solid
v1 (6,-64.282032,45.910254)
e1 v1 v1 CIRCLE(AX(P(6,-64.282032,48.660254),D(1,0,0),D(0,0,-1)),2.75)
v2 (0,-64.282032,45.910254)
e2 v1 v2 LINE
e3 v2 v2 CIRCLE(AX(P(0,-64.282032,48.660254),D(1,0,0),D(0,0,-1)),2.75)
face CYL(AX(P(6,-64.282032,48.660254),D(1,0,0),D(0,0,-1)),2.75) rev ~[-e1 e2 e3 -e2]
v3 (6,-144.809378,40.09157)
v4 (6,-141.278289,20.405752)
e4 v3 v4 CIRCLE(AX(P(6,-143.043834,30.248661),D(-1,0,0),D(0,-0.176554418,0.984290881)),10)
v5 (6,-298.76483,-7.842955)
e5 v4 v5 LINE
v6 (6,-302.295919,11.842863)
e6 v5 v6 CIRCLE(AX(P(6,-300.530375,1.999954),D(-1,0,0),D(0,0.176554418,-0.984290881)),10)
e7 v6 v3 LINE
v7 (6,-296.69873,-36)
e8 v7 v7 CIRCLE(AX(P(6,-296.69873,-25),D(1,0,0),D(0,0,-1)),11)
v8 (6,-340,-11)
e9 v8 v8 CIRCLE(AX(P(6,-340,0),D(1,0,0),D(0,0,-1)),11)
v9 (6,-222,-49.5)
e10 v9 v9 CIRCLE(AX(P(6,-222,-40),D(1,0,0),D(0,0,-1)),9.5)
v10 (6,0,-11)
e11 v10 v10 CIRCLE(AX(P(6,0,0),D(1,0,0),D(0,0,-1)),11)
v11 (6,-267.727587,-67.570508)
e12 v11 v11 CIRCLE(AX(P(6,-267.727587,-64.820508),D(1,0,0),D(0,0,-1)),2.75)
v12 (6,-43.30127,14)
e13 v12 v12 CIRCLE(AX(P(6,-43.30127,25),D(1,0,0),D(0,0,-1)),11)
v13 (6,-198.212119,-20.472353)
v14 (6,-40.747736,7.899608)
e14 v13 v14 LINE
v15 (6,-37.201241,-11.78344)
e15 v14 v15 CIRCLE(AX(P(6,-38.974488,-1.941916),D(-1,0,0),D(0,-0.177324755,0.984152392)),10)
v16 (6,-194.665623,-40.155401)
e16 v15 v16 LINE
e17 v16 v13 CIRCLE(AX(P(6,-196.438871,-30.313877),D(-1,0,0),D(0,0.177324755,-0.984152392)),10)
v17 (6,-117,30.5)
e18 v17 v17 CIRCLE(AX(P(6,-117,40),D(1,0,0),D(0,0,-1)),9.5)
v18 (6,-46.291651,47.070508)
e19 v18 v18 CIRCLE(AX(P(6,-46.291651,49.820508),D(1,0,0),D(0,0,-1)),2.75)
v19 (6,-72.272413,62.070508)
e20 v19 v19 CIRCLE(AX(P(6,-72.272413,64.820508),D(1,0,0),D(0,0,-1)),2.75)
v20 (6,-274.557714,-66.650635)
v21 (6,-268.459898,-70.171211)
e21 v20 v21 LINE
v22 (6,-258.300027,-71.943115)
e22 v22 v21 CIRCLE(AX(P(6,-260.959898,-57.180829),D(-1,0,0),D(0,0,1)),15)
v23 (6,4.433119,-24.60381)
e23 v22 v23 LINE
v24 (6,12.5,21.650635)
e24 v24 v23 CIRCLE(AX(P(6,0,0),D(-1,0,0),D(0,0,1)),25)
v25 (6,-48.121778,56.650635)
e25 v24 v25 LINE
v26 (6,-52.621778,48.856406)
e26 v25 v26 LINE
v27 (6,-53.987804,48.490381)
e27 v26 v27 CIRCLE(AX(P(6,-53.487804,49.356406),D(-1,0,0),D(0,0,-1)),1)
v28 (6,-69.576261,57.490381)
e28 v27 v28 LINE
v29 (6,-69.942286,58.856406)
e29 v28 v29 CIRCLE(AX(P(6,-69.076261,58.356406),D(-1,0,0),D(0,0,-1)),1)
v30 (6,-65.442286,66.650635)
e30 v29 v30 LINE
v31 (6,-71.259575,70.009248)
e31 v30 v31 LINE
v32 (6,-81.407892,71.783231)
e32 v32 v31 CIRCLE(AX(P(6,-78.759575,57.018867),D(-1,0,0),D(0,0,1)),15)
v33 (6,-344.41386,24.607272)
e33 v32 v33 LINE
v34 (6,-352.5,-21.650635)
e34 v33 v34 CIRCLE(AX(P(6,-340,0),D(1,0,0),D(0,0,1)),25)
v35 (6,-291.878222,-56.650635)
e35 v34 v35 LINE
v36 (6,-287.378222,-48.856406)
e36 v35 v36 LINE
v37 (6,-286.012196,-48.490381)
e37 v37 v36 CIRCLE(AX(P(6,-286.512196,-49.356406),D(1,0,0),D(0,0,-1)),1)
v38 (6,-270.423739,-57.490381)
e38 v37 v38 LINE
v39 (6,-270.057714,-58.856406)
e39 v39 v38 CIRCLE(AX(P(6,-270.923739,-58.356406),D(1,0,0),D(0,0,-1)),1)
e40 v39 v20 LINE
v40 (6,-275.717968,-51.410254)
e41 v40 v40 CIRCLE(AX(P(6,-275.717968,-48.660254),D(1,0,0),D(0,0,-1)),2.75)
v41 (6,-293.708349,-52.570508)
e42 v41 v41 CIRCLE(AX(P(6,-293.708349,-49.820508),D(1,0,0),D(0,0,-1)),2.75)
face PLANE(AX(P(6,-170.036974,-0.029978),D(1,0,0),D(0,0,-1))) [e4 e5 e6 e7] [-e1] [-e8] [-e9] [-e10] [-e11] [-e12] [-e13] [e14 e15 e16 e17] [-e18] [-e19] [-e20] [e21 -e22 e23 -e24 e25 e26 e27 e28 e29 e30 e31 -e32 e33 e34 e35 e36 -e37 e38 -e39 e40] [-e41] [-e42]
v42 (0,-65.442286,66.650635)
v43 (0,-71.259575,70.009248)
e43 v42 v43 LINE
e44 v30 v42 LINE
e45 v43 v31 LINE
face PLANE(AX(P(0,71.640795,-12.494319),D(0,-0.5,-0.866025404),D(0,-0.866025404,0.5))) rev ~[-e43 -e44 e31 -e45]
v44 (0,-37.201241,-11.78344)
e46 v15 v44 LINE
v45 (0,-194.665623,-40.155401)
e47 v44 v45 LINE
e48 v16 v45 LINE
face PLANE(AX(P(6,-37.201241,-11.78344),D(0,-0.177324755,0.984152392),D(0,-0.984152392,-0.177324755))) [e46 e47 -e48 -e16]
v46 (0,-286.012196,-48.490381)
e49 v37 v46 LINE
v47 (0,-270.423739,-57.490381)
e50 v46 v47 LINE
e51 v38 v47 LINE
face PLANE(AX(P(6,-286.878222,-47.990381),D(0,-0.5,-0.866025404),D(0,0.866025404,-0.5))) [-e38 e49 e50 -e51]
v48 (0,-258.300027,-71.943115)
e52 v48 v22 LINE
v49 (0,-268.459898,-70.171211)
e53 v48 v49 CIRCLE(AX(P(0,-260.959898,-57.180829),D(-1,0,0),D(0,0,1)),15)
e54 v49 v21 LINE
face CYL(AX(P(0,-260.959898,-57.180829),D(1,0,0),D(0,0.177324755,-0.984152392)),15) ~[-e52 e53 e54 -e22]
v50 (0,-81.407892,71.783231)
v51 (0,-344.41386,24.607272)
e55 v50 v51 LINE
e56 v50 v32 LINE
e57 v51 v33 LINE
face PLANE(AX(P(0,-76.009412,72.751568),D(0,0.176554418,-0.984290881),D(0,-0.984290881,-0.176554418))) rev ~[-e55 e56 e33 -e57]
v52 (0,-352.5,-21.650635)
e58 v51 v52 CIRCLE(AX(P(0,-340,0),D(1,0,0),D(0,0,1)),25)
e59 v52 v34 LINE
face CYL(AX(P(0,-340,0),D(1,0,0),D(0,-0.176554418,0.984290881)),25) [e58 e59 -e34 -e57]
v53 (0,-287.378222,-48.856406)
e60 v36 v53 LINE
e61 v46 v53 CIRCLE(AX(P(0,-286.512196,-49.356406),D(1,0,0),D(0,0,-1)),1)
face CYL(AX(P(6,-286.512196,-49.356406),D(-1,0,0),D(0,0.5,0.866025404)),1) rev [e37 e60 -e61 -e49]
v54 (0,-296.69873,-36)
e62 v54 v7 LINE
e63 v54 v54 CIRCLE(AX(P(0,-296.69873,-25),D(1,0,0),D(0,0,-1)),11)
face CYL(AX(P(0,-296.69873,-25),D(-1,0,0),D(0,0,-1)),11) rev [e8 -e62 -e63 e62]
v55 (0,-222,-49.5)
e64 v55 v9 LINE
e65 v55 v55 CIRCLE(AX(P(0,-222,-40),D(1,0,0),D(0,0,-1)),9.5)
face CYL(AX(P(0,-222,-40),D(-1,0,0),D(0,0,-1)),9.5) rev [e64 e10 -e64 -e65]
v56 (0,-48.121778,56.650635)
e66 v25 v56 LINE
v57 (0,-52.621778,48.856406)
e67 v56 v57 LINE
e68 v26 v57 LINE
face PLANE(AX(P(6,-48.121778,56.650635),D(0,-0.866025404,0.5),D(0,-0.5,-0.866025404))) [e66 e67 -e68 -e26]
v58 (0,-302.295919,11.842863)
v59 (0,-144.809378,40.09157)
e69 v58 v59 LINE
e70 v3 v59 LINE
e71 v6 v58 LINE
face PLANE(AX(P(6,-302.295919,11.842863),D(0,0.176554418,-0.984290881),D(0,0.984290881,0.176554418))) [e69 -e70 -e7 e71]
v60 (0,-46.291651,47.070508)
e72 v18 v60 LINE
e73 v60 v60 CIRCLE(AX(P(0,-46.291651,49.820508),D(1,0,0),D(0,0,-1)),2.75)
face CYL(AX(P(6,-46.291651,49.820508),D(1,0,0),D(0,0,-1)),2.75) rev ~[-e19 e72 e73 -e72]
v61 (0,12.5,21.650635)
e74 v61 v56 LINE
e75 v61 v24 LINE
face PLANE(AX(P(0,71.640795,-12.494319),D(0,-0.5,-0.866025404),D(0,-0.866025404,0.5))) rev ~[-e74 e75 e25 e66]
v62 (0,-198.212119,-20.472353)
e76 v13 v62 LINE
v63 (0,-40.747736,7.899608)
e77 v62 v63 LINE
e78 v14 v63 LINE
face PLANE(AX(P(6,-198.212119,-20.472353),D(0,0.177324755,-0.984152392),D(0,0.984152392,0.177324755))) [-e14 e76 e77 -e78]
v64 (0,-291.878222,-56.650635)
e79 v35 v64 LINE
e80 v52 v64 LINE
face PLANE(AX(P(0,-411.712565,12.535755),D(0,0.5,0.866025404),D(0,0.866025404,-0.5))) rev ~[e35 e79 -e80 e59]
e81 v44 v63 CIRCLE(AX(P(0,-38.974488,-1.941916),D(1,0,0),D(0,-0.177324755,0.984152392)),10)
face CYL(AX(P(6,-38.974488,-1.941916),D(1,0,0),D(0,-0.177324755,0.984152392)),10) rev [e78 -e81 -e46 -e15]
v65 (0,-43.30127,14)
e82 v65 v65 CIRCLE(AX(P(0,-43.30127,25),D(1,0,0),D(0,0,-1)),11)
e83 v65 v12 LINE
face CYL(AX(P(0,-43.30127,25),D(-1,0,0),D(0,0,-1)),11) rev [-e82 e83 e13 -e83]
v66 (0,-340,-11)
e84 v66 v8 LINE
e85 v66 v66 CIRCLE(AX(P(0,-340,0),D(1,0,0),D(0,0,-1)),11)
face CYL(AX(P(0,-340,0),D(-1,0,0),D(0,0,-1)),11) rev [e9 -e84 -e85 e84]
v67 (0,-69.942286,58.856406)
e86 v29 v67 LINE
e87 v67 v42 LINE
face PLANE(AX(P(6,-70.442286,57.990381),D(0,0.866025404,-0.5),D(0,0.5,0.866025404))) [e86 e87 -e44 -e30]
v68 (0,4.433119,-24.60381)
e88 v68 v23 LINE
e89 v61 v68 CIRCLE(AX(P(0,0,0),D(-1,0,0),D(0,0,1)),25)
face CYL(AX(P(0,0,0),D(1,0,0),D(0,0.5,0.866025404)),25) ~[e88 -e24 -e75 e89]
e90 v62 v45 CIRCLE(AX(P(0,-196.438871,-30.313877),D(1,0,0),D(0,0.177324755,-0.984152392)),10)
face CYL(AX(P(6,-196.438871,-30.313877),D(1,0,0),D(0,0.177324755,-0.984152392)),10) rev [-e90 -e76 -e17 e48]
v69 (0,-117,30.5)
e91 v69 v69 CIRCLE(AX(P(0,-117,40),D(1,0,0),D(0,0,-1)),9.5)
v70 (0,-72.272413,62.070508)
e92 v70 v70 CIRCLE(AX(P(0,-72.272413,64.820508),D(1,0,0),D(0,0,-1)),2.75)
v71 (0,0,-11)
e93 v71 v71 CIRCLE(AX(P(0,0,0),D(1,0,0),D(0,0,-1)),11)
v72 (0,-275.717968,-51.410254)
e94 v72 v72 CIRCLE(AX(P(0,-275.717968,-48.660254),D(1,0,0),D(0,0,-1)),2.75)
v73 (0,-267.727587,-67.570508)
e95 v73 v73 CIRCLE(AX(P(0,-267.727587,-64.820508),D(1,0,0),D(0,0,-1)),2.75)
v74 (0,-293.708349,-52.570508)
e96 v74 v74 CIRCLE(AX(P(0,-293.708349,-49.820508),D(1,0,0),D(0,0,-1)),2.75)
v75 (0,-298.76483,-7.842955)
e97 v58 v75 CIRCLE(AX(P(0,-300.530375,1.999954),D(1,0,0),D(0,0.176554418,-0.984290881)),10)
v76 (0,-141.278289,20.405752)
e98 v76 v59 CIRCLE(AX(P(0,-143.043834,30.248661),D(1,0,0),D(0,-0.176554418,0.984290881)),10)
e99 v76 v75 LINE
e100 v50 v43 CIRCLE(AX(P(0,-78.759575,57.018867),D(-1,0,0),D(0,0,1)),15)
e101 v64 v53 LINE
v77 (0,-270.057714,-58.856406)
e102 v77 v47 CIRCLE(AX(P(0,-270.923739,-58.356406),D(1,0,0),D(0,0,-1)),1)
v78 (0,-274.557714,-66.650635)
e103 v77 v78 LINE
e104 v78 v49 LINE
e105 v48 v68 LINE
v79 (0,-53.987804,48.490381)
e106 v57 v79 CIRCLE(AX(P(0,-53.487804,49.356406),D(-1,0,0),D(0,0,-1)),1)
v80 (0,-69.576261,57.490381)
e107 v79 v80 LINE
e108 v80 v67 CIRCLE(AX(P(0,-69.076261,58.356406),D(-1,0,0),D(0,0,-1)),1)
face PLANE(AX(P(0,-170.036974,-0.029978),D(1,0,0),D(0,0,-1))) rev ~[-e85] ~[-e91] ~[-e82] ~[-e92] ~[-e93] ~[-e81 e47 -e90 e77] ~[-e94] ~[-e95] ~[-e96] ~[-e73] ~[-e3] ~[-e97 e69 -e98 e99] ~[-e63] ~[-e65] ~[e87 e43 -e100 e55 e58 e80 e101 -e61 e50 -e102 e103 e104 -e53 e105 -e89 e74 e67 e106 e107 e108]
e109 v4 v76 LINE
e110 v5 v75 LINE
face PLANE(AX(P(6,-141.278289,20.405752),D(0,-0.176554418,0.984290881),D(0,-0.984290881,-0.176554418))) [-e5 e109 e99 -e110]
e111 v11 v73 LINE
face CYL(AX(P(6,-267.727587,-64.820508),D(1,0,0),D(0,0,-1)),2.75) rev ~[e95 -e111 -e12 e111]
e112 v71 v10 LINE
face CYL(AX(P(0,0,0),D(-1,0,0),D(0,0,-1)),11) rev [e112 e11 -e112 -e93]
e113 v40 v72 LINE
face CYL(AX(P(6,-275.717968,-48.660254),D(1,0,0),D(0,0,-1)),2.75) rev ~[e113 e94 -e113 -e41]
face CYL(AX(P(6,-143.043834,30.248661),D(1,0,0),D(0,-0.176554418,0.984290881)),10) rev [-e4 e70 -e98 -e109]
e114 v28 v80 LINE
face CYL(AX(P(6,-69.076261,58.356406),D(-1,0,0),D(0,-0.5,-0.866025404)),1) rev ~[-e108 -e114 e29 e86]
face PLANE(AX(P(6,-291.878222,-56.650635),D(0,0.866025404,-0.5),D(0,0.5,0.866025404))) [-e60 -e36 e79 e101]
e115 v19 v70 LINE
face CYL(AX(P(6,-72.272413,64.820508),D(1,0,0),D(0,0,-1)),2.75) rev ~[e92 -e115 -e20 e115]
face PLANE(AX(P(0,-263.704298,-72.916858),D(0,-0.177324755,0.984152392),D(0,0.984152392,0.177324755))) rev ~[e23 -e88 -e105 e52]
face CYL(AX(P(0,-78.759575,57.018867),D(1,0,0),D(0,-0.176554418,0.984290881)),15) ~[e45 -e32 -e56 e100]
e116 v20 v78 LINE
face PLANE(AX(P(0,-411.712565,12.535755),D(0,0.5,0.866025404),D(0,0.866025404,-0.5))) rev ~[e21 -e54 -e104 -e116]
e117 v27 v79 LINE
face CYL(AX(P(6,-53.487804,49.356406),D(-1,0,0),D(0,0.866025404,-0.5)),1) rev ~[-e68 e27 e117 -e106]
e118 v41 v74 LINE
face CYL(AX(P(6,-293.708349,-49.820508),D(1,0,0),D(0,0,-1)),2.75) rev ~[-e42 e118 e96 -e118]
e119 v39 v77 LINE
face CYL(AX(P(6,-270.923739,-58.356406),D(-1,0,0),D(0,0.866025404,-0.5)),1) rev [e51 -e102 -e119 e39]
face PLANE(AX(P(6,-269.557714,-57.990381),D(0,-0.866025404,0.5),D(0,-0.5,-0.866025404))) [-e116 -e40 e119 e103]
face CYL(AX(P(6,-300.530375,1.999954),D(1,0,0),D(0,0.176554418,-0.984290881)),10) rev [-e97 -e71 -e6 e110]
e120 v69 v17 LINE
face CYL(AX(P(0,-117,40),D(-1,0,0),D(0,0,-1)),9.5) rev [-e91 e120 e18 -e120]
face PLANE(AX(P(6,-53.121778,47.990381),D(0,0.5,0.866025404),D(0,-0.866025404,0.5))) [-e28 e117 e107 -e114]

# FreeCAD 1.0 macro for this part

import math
import FreeCAD as App
import Part
import Sketcher
from FreeCAD import Vector
Q = App.Units.Quantity


def edges_at(feature, points):
    """Names of the edges that pass closest to the given points."""
    edges = feature.Shape.Edges
    near = lambda p: min(range(len(edges)), key=lambda i: edges[i].distToShape(Part.Vertex(*p))[0])
    return sorted({f"Edge{near(p) + 1}" for p in points})


def add_polygon(sketch, points):
    """Adds a closed chain of lines whose ends are joined by coincident constraints."""
    first, n = sketch.GeometryCount, len(points)
    for a, b in zip(points, points[1:] + points[:1]):
        sketch.addGeometry(Part.LineSegment(App.Vector(*a, 0), App.Vector(*b, 0)), False)
    for i in range(n):
        sketch.addConstraint(Sketcher.Constraint("Coincident", first + i, 2, first + (i + 1) % n, 1))

doc = App.newDocument("Part")
body = doc.addObject("PartDesign::Body", "Body")

sketch1 = body.newObject("Sketcher::SketchObject", "Sketch")
sketch1.AttachmentSupport = (doc.getObject("YZ_Plane"), [""])
sketch1.MapMode = "FlatFace"
add_polygon(sketch1, [(71.640795, -12.494319), (-76.009412, 72.751568), (-411.712565, 12.535755), (-263.704298, -72.916858)])
sketch1.addGeometry(Part.Circle(Vector(-340, 0, 0), Vector(0, 0, 1), 11), False)
sketch1.addGeometry(Part.Circle(Vector(-296.69873, -25, 0), Vector(0, 0, 1), 11), False)
sketch1.addGeometry(Part.Circle(Vector(-222, -40, 0), Vector(0, 0, 1), 9.5), False)
sketch1.addGeometry(Part.Circle(Vector(-117, 40, 0), Vector(0, 0, 1), 9.5), False)
sketch1.addGeometry(Part.Circle(Vector(-43.30127, 25, 0), Vector(0, 0, 1), 11), False)
sketch1.addGeometry(Part.Circle(Vector(0, 0, 0), Vector(0, 0, 1), 11), False)
sketch1.addConstraint([
    Sketcher.Constraint("Coincident", 9, 3, -1, 1),
    Sketcher.Constraint("Equal", 4, 5),
    Sketcher.Constraint("Equal", 6, 7),
    Sketcher.Constraint("Equal", 5, 8),
    Sketcher.Constraint("Equal", 8, 9),
    Sketcher.Constraint("PointOnObject", 4, 3, -1),
    Sketcher.Constraint("Parallel", 0, 2),
    Sketcher.Constraint("Diameter", 4, 22.0),
    Sketcher.Constraint("Diameter", 6, 19.0),
    Sketcher.Constraint("Angle", 0, Q("150 deg")),
    Sketcher.Constraint("DistanceX", 4, 3, -1, 1, 340.0),
    Sketcher.Constraint("DistanceY", 5, 3, -1, 1, 25.0),
    Sketcher.Constraint("DistanceX", 6, 3, -1, 1, 222.0),
    Sketcher.Constraint("DistanceY", 6, 3, -1, 1, 40.0),
    Sketcher.Constraint("DistanceX", 7, 3, -1, 1, 117.0),
    Sketcher.Constraint("DistanceY", -1, 1, 7, 3, 40.0),
    Sketcher.Constraint("DistanceY", -1, 1, 8, 3, 25.0),
    Sketcher.Constraint("Distance", 1, 341.06092),
    Sketcher.Constraint("DistanceX", 5, 3, -1, 1, 296.69873),
    Sketcher.Constraint("DistanceX", 8, 3, -1, 1, 43.30127),
    Sketcher.Constraint("DistanceX", 0, 2, -1, 1, 76.009412),
    Sketcher.Constraint("DistanceY", 3, 2, -1, 1, 12.494319),
    Sketcher.Constraint("Distance", 0, 170.491773),
    Sketcher.Constraint("Distance", 2, 170.905227),
    Sketcher.Constraint("DistanceX", 1, 2, -1, 1, 411.712565),
])
pad1 = body.newObject("PartDesign::Pad", "Pad")
pad1.Profile = sketch1
pad1.Length = 6

sketch2 = body.newObject("Sketcher::SketchObject", "Sketch001")
sketch2.AttachmentSupport = (doc.getObject("YZ_Plane"), [""])
sketch2.MapMode = "FlatFace"
sketch2.AttachmentOffset = App.Placement(Vector(0, 0, 6), App.Rotation())
sketch2.addGeometry([
    Part.LineSegment(Vector(-298.76483, -7.842955, 0), Vector(-141.278289, 20.405752, 0)),
    Part.ArcOfCircle(Part.Circle(Vector(-143.043834, 30.248661, 0), Vector(0, 0, 1), 10), math.radians(-79.830872), math.radians(100.169128)),
    Part.LineSegment(Vector(-144.809378, 40.09157, 0), Vector(-302.295919, 11.842863, 0)),
    Part.ArcOfCircle(Part.Circle(Vector(-300.530375, 1.999954, 0), Vector(0, 0, 1), 10), math.radians(100.169128), math.radians(280.169128)),
    Part.LineSegment(Vector(-194.665623, -40.155401, 0), Vector(-37.201241, -11.78344, 0)),
    Part.ArcOfCircle(Part.Circle(Vector(-38.974488, -1.941916, 0), Vector(0, 0, 1), 10), math.radians(-79.786027), math.radians(100.213973)),
    Part.LineSegment(Vector(-40.747736, 7.899608, 0), Vector(-198.212119, -20.472353, 0)),
    Part.ArcOfCircle(Part.Circle(Vector(-196.438871, -30.313877, 0), Vector(0, 0, 1), 10), math.radians(100.213973), math.radians(280.213973)),
], False)
sketch2.addConstraint([
    Sketcher.Constraint("Tangent", 0, 2, 1, 1),
    Sketcher.Constraint("Tangent", 1, 2, 2, 1),
    Sketcher.Constraint("Tangent", 2, 2, 3, 1),
    Sketcher.Constraint("Tangent", 3, 2, 0, 1),
    Sketcher.Constraint("Tangent", 4, 2, 5, 1),
    Sketcher.Constraint("Tangent", 5, 2, 6, 1),
    Sketcher.Constraint("Tangent", 6, 2, 7, 1),
    Sketcher.Constraint("Tangent", 7, 2, 4, 1),
    Sketcher.Constraint("Equal", 1, 3),
    Sketcher.Constraint("Equal", 3, 5),
    Sketcher.Constraint("Equal", 5, 7),
    Sketcher.Constraint("Equal", 2, 4),
    Sketcher.Constraint("Radius", 1, 10.0),
    Sketcher.Constraint("Distance", 0, 160.0),
    Sketcher.Constraint("DistanceY", 7, 2, -1, 1, 40.155401),
    Sketcher.Constraint("DistanceX", 0, 2, 5, 3, 102.303801),
    Sketcher.Constraint("DistanceY", 3, 3, 0, 2, 18.405798),
    Sketcher.Constraint("DistanceY", 4, 2, 1, 3, 42.032101),
    Sketcher.Constraint("DistanceY", 6, 2, 3, 2, 12.629399),
    Sketcher.Constraint("DistanceX", 5, 3, -1, 1, 38.974488),
])
pocket1 = body.newObject("PartDesign::Pocket", "Pocket")
pocket1.Profile = sketch2
pocket1.Length = 10
doc.recompute()

fillet = body.newObject("PartDesign::Fillet", "Fillet")
fillet.Base = (pocket1, edges_at(pocket1, [(3, -411.713, 12.536), (3, 71.641, -12.494)]))
fillet.Radius = 25

sketch3 = body.newObject("Sketcher::SketchObject", "Sketch002")
sketch3.AttachmentSupport = (doc.getObject("YZ_Plane"), [""])
sketch3.MapMode = "FlatFace"
sketch3.AttachmentOffset = App.Placement(Vector(0, 0, 6), App.Rotation())
sketch3.addGeometry(Part.Circle(Vector(-46.291651, 49.820508, 0), Vector(0, 0, 1), 2.75), False)
sketch3.addGeometry(Part.Circle(Vector(-72.272413, 64.820508, 0), Vector(0, 0, 1), 2.75), False)
sketch3.addGeometry(Part.Circle(Vector(-64.282032, 48.660254, 0), Vector(0, 0, 1), 2.75), False)
sketch3.addGeometry(Part.Circle(Vector(-275.717968, -48.660254, 0), Vector(0, 0, 1), 2.75), False)
sketch3.addGeometry(Part.Circle(Vector(-293.708349, -49.820508, 0), Vector(0, 0, 1), 2.75), False)
sketch3.addGeometry(Part.Circle(Vector(-267.727587, -64.820508, 0), Vector(0, 0, 1), 2.75), False)
add_polygon(sketch3, [(-48.121778, 56.650635), (-65.442286, 66.650635), (-70.442286, 57.990381), (-53.121778, 47.990381)])
add_polygon(sketch3, [(-269.557714, -57.990381), (-286.878222, -47.990381), (-291.878222, -56.650635), (-274.557714, -66.650635)])
sketch3.addConstraint([
    Sketcher.Constraint("Equal", 0, 1),
    Sketcher.Constraint("Equal", 1, 2),
    Sketcher.Constraint("Equal", 2, 3),
    Sketcher.Constraint("Equal", 3, 4),
    Sketcher.Constraint("Equal", 4, 5),
    Sketcher.Constraint("Perpendicular", 6, 7),
    Sketcher.Constraint("Perpendicular", 7, 8),
    Sketcher.Constraint("Perpendicular", 8, 9),
    Sketcher.Constraint("Perpendicular", 9, 10),
    Sketcher.Constraint("Perpendicular", 10, 11),
    Sketcher.Constraint("Perpendicular", 11, 12),
    Sketcher.Constraint("Perpendicular", 12, 13),
    Sketcher.Constraint("Equal", 8, 10),
    Sketcher.Constraint("Equal", 9, 11),
    Sketcher.Constraint("Diameter", 0, 5.5),
    Sketcher.Constraint("Angle", 6, Q("150 deg")),
    Sketcher.Constraint("Distance", 6, 20.0),
    Sketcher.Constraint("Distance", 7, 10.0),
    Sketcher.Constraint("DistanceY", 0, 3, 1, 3, 15.0),
    Sketcher.Constraint("DistanceY", 5, 3, 4, 3, 15.0),
    Sketcher.Constraint("DistanceX", 5, 3, 6, 2, 202.2853),
    Sketcher.Constraint("DistanceX", 0, 3, -1, 1, 46.291651),
    Sketcher.Constraint("DistanceY", -1, 1, 0, 3, 49.820508),
    Sketcher.Constraint("DistanceX", 4, 3, -1, 1, 293.708349),
    Sketcher.Constraint("DistanceY", 4, 3, -1, 1, 49.820508),
    Sketcher.Constraint("DistanceY", -1, 1, 7, 2, 57.990381),
    Sketcher.Constraint("DistanceX", 8, 2, -1, 1, 53.121778),
    Sketcher.Constraint("DistanceX", 10, 2, -1, 1, 286.878222),
    Sketcher.Constraint("DistanceY", 10, 2, -1, 1, 47.990381),
    Sketcher.Constraint("DistanceX", 2, 3, 0, 3, 17.990381),
    Sketcher.Constraint("DistanceX", 1, 3, 2, 3, 7.990381),
    Sketcher.Constraint("DistanceY", 3, 3, 2, 3, 97.320508),
    Sketcher.Constraint("DistanceX", 4, 3, 3, 3, 17.990381),
    Sketcher.Constraint("DistanceY", 2, 3, 6, 2, 17.990381),
])
pocket2 = body.newObject("PartDesign::Pocket", "Pocket001")
pocket2.Profile = sketch3
pocket2.Length = 10
doc.recompute()

fillet2 = body.newObject("PartDesign::Fillet", "Fillet001")
fillet2.Base = (pocket2, edges_at(pocket2, [(3, -263.704, -72.917), (3, -76.009, 72.752)]))
fillet2.Radius = 15
doc.recompute()

fillet3 = body.newObject("PartDesign::Fillet", "Fillet002")
fillet3.Base = (fillet2, edges_at(fillet2, [
    (3, -286.878, -47.99),
    (3, -269.558, -57.99),
    (3, -53.122, 47.99),
    (3, -70.442, 57.99),
]))
fillet3.Radius = 1

doc.recompute()
